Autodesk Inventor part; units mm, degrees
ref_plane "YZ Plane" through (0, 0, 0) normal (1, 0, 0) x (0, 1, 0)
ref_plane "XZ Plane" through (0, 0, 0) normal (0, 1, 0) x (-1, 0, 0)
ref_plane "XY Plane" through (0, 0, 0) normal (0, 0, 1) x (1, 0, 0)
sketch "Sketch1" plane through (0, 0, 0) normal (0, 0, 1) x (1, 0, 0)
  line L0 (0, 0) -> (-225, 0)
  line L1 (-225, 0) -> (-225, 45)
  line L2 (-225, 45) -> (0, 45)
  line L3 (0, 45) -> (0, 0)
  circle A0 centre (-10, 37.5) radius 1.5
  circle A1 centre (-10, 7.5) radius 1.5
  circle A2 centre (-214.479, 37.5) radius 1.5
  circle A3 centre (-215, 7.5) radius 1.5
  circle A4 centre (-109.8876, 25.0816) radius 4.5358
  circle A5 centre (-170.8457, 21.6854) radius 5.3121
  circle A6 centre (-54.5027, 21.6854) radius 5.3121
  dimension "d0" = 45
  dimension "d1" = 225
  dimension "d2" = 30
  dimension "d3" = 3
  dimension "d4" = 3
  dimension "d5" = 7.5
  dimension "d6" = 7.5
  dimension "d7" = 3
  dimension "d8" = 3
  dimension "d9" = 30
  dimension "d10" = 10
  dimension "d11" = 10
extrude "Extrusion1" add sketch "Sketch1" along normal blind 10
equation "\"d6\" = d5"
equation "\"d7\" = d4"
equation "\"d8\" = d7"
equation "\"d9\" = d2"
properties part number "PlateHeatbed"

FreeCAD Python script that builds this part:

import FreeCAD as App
import Part
import Sketcher
Q = App.Units.Quantity

doc = App.newDocument("Part")
body = doc.addObject("PartDesign::Body", "Body")

# Sketch on XY plane
sketch1 = body.newObject("Sketcher::SketchObject", "Sketch")
sketch1.AttachmentSupport = (doc.getObject("XY_Plane"), [""])
sketch1.MapMode = "FlatFace"
sketch1.addGeometry([
    Part.LineSegment(App.Vector(-225, 0, 0), App.Vector(0, 0, 0)),  # 0
    Part.LineSegment(App.Vector(0, 0, 0), App.Vector(0, 45, 0)),  # 1
    Part.LineSegment(App.Vector(0, 45, 0), App.Vector(-225, 45, 0)),  # 2
    Part.LineSegment(App.Vector(-225, 45, 0), App.Vector(-225, 0, 0)),  # 3
    Part.Circle(App.Vector(-215, 7.5, 0), App.Vector(0, 0, 1), 1.5),  # 4
    Part.Circle(App.Vector(-170.8, 21.7, 0), App.Vector(0, 0, 1), 5.3),  # 5
    Part.Circle(App.Vector(-10, 7.5, 0), App.Vector(0, 0, 1), 1.5),  # 6
    Part.Circle(App.Vector(-54.5, 21.7, 0), App.Vector(0, 0, 1), 5.3),  # 7
    Part.Circle(App.Vector(-214.5, 37.5, 0), App.Vector(0, 0, 1), 1.5),  # 8
    Part.Circle(App.Vector(-109.9, 25.1, 0), App.Vector(0, 0, 1), 4.5),  # 9
    Part.Circle(App.Vector(-10, 37.5, 0), App.Vector(0, 0, 1), 1.5),  # 10
], False)
sketch1.addConstraint([
    Sketcher.Constraint("Coincident", 0, 2, 1, 1),
    Sketcher.Constraint("Coincident", 1, 2, 2, 1),
    Sketcher.Constraint("Coincident", 2, 2, 3, 1),
    Sketcher.Constraint("Coincident", 3, 2, 0, 1),
    Sketcher.Constraint("Horizontal", 0),
    Sketcher.Constraint("Vertical", 1),
    Sketcher.Constraint("Horizontal", 2),
    Sketcher.Constraint("Vertical", 3),
    Sketcher.Constraint("Coincident", 0, 2, -1, 1),
    Sketcher.Constraint("Equal", 4, 6),
    Sketcher.Constraint("Equal", 5, 7),
    Sketcher.Constraint("Equal", 6, 8),
    Sketcher.Constraint("Equal", 8, 10),
    Sketcher.Constraint("Horizontal", 4, 3, 6, 3),
    Sketcher.Constraint("Horizontal", 5, 3, 7, 3),
    Sketcher.Constraint("Horizontal", 8, 3, 10, 3),
    Sketcher.Constraint("Vertical", 6, 3, 10, 3),
    Sketcher.Constraint("Diameter", 4, Q("3 mm")),
    Sketcher.Constraint("DistanceX", 0, 1, 0, 2, Q("225 mm")),
    Sketcher.Constraint("DistanceY", 1, 1, 1, 2, Q("45 mm")),
    Sketcher.Constraint("DistanceX", 6, 3, -1, 1, Q("10 mm")),
    Sketcher.Constraint("DistanceY", 4, 3, 8, 3, Q("30 mm")),
    Sketcher.Constraint("DistanceX", 2, 2, 4, 3, Q("10 mm")),
    Sketcher.Constraint("DistanceY", -1, 1, 4, 3, Q("7.5 mm")),
    Sketcher.Constraint("Diameter", 5, Q("10.6242 mm")),
    Sketcher.Constraint("Diameter", 9, Q("9.0716 mm")),
    Sketcher.Constraint("DistanceX", 8, 3, -1, 1, Q("214.479 mm")),
    Sketcher.Constraint("DistanceX", 5, 3, 7, 3, Q("116.343 mm")),
    Sketcher.Constraint("DistanceX", 9, 3, 7, 3, Q("55.385 mm")),
    Sketcher.Constraint("DistanceX", 5, 3, -1, 1, Q("170.8457 mm")),
    Sketcher.Constraint("DistanceY", -1, 1, 5, 3, Q("21.6854 mm")),
    Sketcher.Constraint("DistanceY", -1, 1, 9, 3, Q("25.0816 mm")),
])
pad1 = body.newObject("PartDesign::Pad", "Pad")
pad1.Profile = sketch1
pad1.Length = 10

doc.recompute()
